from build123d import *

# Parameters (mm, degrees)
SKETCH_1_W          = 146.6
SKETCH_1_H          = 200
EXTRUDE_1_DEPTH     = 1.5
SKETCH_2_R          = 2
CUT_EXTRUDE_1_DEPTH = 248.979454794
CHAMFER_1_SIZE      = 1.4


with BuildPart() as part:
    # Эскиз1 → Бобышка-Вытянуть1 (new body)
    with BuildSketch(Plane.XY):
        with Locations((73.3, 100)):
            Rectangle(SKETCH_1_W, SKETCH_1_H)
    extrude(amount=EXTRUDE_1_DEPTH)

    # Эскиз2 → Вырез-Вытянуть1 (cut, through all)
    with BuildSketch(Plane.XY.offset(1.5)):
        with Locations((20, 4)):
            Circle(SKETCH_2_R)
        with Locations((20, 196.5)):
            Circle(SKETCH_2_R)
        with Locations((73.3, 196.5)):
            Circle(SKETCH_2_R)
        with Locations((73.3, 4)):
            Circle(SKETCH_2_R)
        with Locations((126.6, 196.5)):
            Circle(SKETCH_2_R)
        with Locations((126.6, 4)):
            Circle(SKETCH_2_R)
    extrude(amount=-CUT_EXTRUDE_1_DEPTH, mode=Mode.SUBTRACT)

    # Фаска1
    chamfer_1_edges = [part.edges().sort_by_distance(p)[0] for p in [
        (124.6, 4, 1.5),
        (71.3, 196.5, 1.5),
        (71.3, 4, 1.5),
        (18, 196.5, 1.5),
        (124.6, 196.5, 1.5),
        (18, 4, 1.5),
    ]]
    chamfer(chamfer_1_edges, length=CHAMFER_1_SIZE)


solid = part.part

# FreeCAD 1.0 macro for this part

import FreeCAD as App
import Part
import Sketcher
from FreeCAD import Vector
Q = App.Units.Quantity


def edges_at(feature, points):
    """Names of the edges that pass closest to the given points."""
    edges = feature.Shape.Edges
    near = lambda p: min(range(len(edges)), key=lambda i: edges[i].distToShape(Part.Vertex(*p))[0])
    return sorted({f"Edge{near(p) + 1}" for p in points})

doc = App.newDocument("Part")
body = doc.addObject("PartDesign::Body", "Body")

# Sketch on XY plane
sketch1 = body.newObject("Sketcher::SketchObject", "Sketch")
sketch1.AttachmentSupport = (doc.getObject("XY_Plane"), [""])
sketch1.MapMode = "FlatFace"
sketch1.addGeometry([
    Part.LineSegment(Vector(0, 200, 0), Vector(0, 0, 0)),
    Part.LineSegment(Vector(0, 0, 0), Vector(147, 0, 0)),
    Part.LineSegment(Vector(147, 0, 0), Vector(147, 200, 0)),
    Part.LineSegment(Vector(147, 200, 0), Vector(0, 200, 0)),
], False)
sketch1.addConstraint([
    Sketcher.Constraint("Coincident", 0, 2, 1, 1),
    Sketcher.Constraint("Coincident", 1, 2, 2, 1),
    Sketcher.Constraint("Coincident", 2, 2, 3, 1),
    Sketcher.Constraint("Coincident", 3, 2, 0, 1),
    Sketcher.Constraint("Vertical", 0),
    Sketcher.Constraint("Horizontal", 1),
    Sketcher.Constraint("Vertical", 2),
    Sketcher.Constraint("Horizontal", 3),
    Sketcher.Constraint("Coincident", 0, 2, -1, 1),
    Sketcher.Constraint("DistanceY", 0, 2, 0, 1, Q("200 mm")),
    Sketcher.Constraint("DistanceX", 1, 1, 1, 2, Q("146.6 mm")),
])
pad1 = body.newObject("PartDesign::Pad", "Pad")
pad1.Profile = sketch1
pad1.Length = 1.5

# Sketch on XY plane
sketch2 = body.newObject("Sketcher::SketchObject", "Sketch001")
sketch2.AttachmentSupport = (doc.getObject("XY_Plane"), [""])
sketch2.MapMode = "FlatFace"
sketch2.AttachmentOffset = App.Placement(Vector(0, 0, 1.5), App.Rotation())
sketch2.addGeometry([
    Part.Circle(Vector(20, 4, 0), Vector(0, 0, 1), 2),  # 0
    Part.Circle(Vector(20, 196.5, 0), Vector(0, 0, 1), 2),  # 1
    Part.Circle(Vector(73.3, 196.5, 0), Vector(0, 0, 1), 2),  # 2
    Part.Circle(Vector(73.3, 4, 0), Vector(0, 0, 1), 2),  # 3
    Part.Circle(Vector(126.6, 196.5, 0), Vector(0, 0, 1), 2),  # 4
    Part.Circle(Vector(126.6, 4, 0), Vector(0, 0, 1), 2),  # 5
], False)
sketch2.addConstraint([
    Sketcher.Constraint("Equal", 0, 1),
    Sketcher.Constraint("Equal", 1, 2),
    Sketcher.Constraint("Equal", 2, 3),
    Sketcher.Constraint("Equal", 3, 4),
    Sketcher.Constraint("Equal", 4, 5),
    Sketcher.Constraint("Horizontal", 1, 3, 2, 3),
    Sketcher.Constraint("Horizontal", 0, 3, 3, 3),
    Sketcher.Constraint("Horizontal", 2, 3, 4, 3),
    Sketcher.Constraint("Horizontal", 3, 3, 5, 3),
    Sketcher.Constraint("Vertical", 0, 3, 1, 3),
    Sketcher.Constraint("Vertical", 2, 3, 3, 3),
    Sketcher.Constraint("Vertical", 4, 3, 5, 3),
    Sketcher.Constraint("Diameter", 0, Q("4 mm")),
    Sketcher.Constraint("DistanceX", -1, 1, 0, 3, Q("20 mm")),
    Sketcher.Constraint("DistanceY", -1, 1, 0, 3, Q("4 mm")),
    Sketcher.Constraint("DistanceY", -1, 1, 1, 3, Q("196.5 mm")),
    Sketcher.Constraint("DistanceX", -1, 1, 2, 3, Q("73.3 mm")),
    Sketcher.Constraint("DistanceX", -1, 1, 4, 3, Q("126.6 mm")),
])
pocket1 = body.newObject("PartDesign::Pocket", "Pocket")
pocket1.Profile = sketch2
pocket1.Type = "ThroughAll"
doc.recompute()

chamfer = body.newObject("PartDesign::Chamfer", "Chamfer")
chamfer.Base = (pocket1, edges_at(pocket1, [
    (124.6, 4, 1.5),
    (71.3, 196.5, 1.5),
    (71.3, 4, 1.5),
    (18, 196.5, 1.5),
    (124.6, 196.5, 1.5),
    (18, 4, 1.5),
]))
chamfer.Size = 1.4

doc.recompute()
